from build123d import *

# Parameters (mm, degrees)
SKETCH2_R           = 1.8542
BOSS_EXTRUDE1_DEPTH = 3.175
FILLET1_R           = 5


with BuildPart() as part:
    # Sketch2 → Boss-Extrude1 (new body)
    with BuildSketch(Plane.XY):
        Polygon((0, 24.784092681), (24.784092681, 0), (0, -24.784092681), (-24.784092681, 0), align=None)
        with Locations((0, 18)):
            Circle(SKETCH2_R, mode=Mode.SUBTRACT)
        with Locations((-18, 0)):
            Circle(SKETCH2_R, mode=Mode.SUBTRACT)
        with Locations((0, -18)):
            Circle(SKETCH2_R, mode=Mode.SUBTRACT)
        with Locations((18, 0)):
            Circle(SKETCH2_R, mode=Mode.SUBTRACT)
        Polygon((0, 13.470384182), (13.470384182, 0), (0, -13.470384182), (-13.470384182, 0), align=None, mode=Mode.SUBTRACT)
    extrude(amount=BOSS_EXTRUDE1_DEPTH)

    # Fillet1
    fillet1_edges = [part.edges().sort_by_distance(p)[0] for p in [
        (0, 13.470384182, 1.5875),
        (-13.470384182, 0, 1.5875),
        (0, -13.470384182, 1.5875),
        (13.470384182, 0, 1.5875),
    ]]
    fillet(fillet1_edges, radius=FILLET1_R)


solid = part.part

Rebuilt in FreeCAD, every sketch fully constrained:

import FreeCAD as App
import Part
import Sketcher
from FreeCAD import Vector
Q = App.Units.Quantity


def edges_at(feature, points):
    """Names of the edges that pass closest to the given points."""
    edges = feature.Shape.Edges
    near = lambda p: min(range(len(edges)), key=lambda i: edges[i].distToShape(Part.Vertex(*p))[0])
    return sorted({f"Edge{near(p) + 1}" for p in points})

doc = App.newDocument("Part")
body = doc.addObject("PartDesign::Body", "Body")

sketch1 = body.newObject("Sketcher::SketchObject", "Sketch")
sketch1.AttachmentSupport = (doc.getObject("XY_Plane"), [""])
sketch1.MapMode = "FlatFace"
sketch1.addGeometry(Part.LineSegment(Vector(24.8, 0, 0), Vector(0, 24.8, 0)), False)
sketch1.addGeometry(Part.LineSegment(Vector(0, 24.8, 0), Vector(-24.8, 0, 0)), False)
sketch1.addGeometry(Part.LineSegment(Vector(-24.8, 0, 0), Vector(0, -24.8, 0)), False)
sketch1.addGeometry(Part.LineSegment(Vector(0, -24.8, 0), Vector(24.8, 0, 0)), False)
sketch1.addGeometry(Part.Circle(Vector(0, -18, 0), Vector(0, 0, 1), 1.9), False)
sketch1.addGeometry(Part.Circle(Vector(18, 0, 0), Vector(0, 0, 1), 1.9), False)
sketch1.addGeometry(Part.LineSegment(Vector(0, 13.5, 0), Vector(13.5, 0, 0)), False)
sketch1.addGeometry(Part.LineSegment(Vector(13.5, 0, 0), Vector(0, -13.5, 0)), False)
sketch1.addGeometry(Part.LineSegment(Vector(0, -13.5, 0), Vector(-13.5, 0, 0)), False)
sketch1.addGeometry(Part.LineSegment(Vector(-13.5, 0, 0), Vector(0, 13.5, 0)), False)
sketch1.addGeometry(Part.Circle(Vector(-18, 0, 0), Vector(0, 0, 1), 1.9), False)
sketch1.addGeometry(Part.Circle(Vector(0, 18, 0), Vector(0, 0, 1), 1.9), False)
sketch1.addConstraint(Sketcher.Constraint("Coincident", 0, 2, 1, 1))
sketch1.addConstraint(Sketcher.Constraint("Coincident", 1, 2, 2, 1))
sketch1.addConstraint(Sketcher.Constraint("Coincident", 2, 2, 3, 1))
sketch1.addConstraint(Sketcher.Constraint("Coincident", 3, 2, 0, 1))
sketch1.addConstraint(Sketcher.Constraint("Coincident", 6, 2, 7, 1))
sketch1.addConstraint(Sketcher.Constraint("Coincident", 7, 2, 8, 1))
sketch1.addConstraint(Sketcher.Constraint("Coincident", 8, 2, 9, 1))
sketch1.addConstraint(Sketcher.Constraint("Coincident", 9, 2, 6, 1))
sketch1.addConstraint(Sketcher.Constraint("Equal", 4, 5))
sketch1.addConstraint(Sketcher.Constraint("Equal", 5, 10))
sketch1.addConstraint(Sketcher.Constraint("Equal", 10, 11))
sketch1.addConstraint(Sketcher.Constraint("Symmetric", 5, 3, 10, 3, -1, 1))
sketch1.addConstraint(Sketcher.Constraint("Symmetric", 4, 3, 11, 3, -1, 1))
sketch1.addConstraint(Sketcher.Constraint("Symmetric", 0, 2, 2, 2, -1, 1))
sketch1.addConstraint(Sketcher.Constraint("Symmetric", 1, 2, 3, 2, -1, 1))
sketch1.addConstraint(Sketcher.Constraint("Symmetric", 6, 2, 8, 2, -1, 1))
sketch1.addConstraint(Sketcher.Constraint("Symmetric", 7, 2, 9, 2, -1, 1))
sketch1.addConstraint(Sketcher.Constraint("PointOnObject", 4, 3, -2))
sketch1.addConstraint(Sketcher.Constraint("PointOnObject", 5, 3, -1))
sketch1.addConstraint(Sketcher.Constraint("PointOnObject", 0, 2, -2))
sketch1.addConstraint(Sketcher.Constraint("PointOnObject", 1, 2, -1))
sketch1.addConstraint(Sketcher.Constraint("PointOnObject", 6, 2, -1))
sketch1.addConstraint(Sketcher.Constraint("PointOnObject", 7, 2, -2))
sketch1.addConstraint(Sketcher.Constraint("Perpendicular", 0, 1))
sketch1.addConstraint(Sketcher.Constraint("Perpendicular", 3, 6))
sketch1.addConstraint(Sketcher.Constraint("Diameter", 4, Q("0.146 in")))
sketch1.addConstraint(Sketcher.Constraint("Distance", 6, Q("0.75 in")))
sketch1.addConstraint(Sketcher.Constraint("Distance", 0, Q("35.05 mm")))
sketch1.addConstraint(Sketcher.Constraint("DistanceY", 4, 3, -1, 1, Q("18 mm")))
sketch1.addConstraint(Sketcher.Constraint("DistanceX", -1, 1, 5, 3, Q("18 mm")))
pad1 = body.newObject("PartDesign::Pad", "Pad")
pad1.Profile = sketch1
pad1.Length = Q("0.125 in")
doc.recompute()

fillet = body.newObject("PartDesign::Fillet", "Fillet")
fillet.Base = (pad1, edges_at(pad1, [
    (0, 13.47, 1.587),
    (-13.47, 0, 1.587),
    (0, -13.47, 1.587),
    (13.47, 0, 1.587),
]))
fillet.Radius = 5

doc.recompute()
